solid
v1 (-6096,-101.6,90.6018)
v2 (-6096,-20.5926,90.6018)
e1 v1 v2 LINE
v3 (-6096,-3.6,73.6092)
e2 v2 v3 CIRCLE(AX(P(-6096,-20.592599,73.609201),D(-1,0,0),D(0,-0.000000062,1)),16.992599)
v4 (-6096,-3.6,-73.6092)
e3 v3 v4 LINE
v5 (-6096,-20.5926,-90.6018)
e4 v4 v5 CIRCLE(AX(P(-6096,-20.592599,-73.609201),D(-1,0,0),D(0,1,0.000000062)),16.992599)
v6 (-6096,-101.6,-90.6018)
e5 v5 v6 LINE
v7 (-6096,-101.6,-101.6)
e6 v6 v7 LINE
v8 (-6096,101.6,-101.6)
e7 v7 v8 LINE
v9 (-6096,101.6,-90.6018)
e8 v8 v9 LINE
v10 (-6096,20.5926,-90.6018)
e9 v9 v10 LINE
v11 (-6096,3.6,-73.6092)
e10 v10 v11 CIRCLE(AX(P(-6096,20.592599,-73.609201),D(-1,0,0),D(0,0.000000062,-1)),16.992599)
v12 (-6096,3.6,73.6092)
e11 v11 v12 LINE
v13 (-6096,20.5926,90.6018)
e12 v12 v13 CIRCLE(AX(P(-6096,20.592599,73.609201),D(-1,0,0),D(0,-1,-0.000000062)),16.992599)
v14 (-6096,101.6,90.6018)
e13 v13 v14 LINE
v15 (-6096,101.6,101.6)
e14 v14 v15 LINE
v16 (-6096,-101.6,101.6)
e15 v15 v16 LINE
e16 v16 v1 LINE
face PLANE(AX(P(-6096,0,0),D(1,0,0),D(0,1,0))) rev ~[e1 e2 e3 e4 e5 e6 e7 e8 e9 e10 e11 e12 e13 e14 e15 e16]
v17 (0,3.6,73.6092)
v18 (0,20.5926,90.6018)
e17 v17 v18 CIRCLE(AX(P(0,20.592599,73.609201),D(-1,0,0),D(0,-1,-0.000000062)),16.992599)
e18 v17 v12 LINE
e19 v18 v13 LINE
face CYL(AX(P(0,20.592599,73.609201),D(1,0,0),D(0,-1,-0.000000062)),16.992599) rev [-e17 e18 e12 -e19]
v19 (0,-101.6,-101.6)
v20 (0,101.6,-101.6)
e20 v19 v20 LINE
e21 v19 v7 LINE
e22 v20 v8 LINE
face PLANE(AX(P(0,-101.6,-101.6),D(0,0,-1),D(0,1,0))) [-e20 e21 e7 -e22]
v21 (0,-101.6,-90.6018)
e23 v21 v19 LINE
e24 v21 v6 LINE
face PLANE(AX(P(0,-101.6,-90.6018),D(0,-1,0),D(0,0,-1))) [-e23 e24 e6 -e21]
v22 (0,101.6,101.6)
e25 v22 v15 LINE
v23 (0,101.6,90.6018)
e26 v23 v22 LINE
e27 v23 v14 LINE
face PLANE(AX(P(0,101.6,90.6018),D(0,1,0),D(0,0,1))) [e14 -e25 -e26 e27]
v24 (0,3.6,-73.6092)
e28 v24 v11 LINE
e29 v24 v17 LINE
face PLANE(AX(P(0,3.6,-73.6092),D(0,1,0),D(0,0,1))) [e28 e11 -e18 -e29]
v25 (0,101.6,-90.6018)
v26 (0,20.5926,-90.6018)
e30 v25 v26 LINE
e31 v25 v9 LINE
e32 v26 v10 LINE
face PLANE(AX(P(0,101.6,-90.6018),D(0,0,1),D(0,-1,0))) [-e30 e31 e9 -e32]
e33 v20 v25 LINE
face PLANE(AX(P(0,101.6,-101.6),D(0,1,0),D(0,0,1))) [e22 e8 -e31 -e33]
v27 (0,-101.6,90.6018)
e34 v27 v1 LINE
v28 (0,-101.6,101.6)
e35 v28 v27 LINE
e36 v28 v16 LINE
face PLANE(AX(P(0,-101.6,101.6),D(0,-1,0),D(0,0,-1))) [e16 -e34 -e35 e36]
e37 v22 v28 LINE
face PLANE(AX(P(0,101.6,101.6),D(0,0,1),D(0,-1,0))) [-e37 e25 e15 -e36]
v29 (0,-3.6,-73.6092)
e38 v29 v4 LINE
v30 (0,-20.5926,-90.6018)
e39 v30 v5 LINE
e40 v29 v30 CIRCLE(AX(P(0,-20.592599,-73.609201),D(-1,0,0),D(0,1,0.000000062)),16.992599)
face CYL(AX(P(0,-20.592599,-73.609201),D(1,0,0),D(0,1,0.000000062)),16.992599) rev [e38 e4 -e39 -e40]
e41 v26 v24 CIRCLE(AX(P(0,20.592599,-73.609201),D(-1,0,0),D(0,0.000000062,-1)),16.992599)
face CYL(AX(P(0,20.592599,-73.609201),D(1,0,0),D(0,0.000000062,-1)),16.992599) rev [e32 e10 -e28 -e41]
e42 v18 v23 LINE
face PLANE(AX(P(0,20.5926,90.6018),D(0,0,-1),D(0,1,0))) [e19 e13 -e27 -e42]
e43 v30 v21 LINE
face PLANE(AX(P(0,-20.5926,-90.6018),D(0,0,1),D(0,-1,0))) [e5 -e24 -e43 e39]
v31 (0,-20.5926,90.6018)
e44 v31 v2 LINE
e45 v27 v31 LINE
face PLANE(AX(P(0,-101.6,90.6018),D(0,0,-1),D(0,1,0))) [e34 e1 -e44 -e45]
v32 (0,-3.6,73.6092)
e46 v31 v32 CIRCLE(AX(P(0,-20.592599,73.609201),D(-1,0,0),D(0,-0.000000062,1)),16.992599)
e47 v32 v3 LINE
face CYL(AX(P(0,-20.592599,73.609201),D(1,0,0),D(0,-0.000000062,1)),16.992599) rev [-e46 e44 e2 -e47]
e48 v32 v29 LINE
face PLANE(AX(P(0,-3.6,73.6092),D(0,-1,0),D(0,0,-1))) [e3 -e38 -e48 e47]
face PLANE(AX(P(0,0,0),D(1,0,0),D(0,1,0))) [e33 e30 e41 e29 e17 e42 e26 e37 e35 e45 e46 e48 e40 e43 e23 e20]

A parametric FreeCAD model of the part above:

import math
import FreeCAD as App
import Part
import Sketcher

V = App.Vector
Q = App.Units.Quantity

doc = App.newDocument("Part")
params = doc.addObject("Spreadsheet::Sheet", "Params")
for row, (alias, value) in enumerate([
    ("sketch1_width", "8 in"),
    ("sketch1_radius", "0.669 in"),
    ("sketch1_height", "5.796 in"),
    ("pad1_length", "240 in"),
], start=1):
    params.set(f"A{row}", alias)
    params.set(f"B{row}", "=" + value)
    params.setAlias(f"B{row}", alias)

body = doc.addObject("PartDesign::Body", "Body")

# Sketch on YZ plane
sketch1 = doc.addObject("Sketcher::SketchObject", "Sketch")
body.addObject(sketch1)
sketch1.AttachmentSupport = (doc.YZ_Plane, [""])
sketch1.MapMode = "FlatFace"
sketch1.addGeometry(Part.LineSegment(V(-4, 74, 0), V(-4, -74, 0)), False)
sketch1.addGeometry(Part.ArcOfCircle(Part.Circle(V(-21, -74, 0), V(0, 0, 1), 17), math.radians(-90), math.radians(0)), False)
sketch1.addGeometry(Part.LineSegment(V(-21, -91, 0), V(-102, -91, 0)), False)
sketch1.addGeometry(Part.LineSegment(V(-102, -91, 0), V(-102, -102, 0)), False)
sketch1.addGeometry(Part.LineSegment(V(-102, -102, 0), V(102, -102, 0)), False)
sketch1.addGeometry(Part.LineSegment(V(102, -102, 0), V(102, -91, 0)), False)
sketch1.addGeometry(Part.LineSegment(V(102, -91, 0), V(21, -91, 0)), False)
sketch1.addGeometry(Part.ArcOfCircle(Part.Circle(V(21, -74, 0), V(0, 0, 1), 17), math.radians(180), math.radians(270)), False)
sketch1.addGeometry(Part.LineSegment(V(4, -74, 0), V(4, 74, 0)), False)
sketch1.addGeometry(Part.ArcOfCircle(Part.Circle(V(21, 74, 0), V(0, 0, 1), 17), math.radians(90), math.radians(180)), False)
sketch1.addGeometry(Part.LineSegment(V(21, 91, 0), V(102, 91, 0)), False)
sketch1.addGeometry(Part.LineSegment(V(102, 91, 0), V(102, 102, 0)), False)
sketch1.addGeometry(Part.LineSegment(V(102, 102, 0), V(-102, 102, 0)), False)
sketch1.addGeometry(Part.LineSegment(V(-102, 102, 0), V(-102, 91, 0)), False)
sketch1.addGeometry(Part.LineSegment(V(-102, 91, 0), V(-21, 91, 0)), False)
sketch1.addGeometry(Part.ArcOfCircle(Part.Circle(V(-21, 74, 0), V(0, 0, 1), 17), math.radians(0), math.radians(90)), False)
sketch1.addConstraint(Sketcher.Constraint("Tangent", 0, 2, 1, 2))
sketch1.addConstraint(Sketcher.Constraint("Tangent", 1, 1, 2, 1))
sketch1.addConstraint(Sketcher.Constraint("Coincident", 2, 2, 3, 1))
sketch1.addConstraint(Sketcher.Constraint("Coincident", 3, 2, 4, 1))
sketch1.addConstraint(Sketcher.Constraint("Coincident", 4, 2, 5, 1))
sketch1.addConstraint(Sketcher.Constraint("Coincident", 5, 2, 6, 1))
sketch1.addConstraint(Sketcher.Constraint("Tangent", 6, 2, 7, 2))
sketch1.addConstraint(Sketcher.Constraint("Tangent", 7, 1, 8, 1))
sketch1.addConstraint(Sketcher.Constraint("Tangent", 8, 2, 9, 2))
sketch1.addConstraint(Sketcher.Constraint("Tangent", 9, 1, 10, 1))
sketch1.addConstraint(Sketcher.Constraint("Coincident", 10, 2, 11, 1))
sketch1.addConstraint(Sketcher.Constraint("Coincident", 11, 2, 12, 1))
sketch1.addConstraint(Sketcher.Constraint("Coincident", 12, 2, 13, 1))
sketch1.addConstraint(Sketcher.Constraint("Coincident", 13, 2, 14, 1))
sketch1.addConstraint(Sketcher.Constraint("Tangent", 14, 2, 15, 2))
sketch1.addConstraint(Sketcher.Constraint("Tangent", 15, 1, 0, 1))
sketch1.addConstraint(Sketcher.Constraint("Vertical", 0))
sketch1.addConstraint(Sketcher.Constraint("Horizontal", 2))
sketch1.addConstraint(Sketcher.Constraint("Vertical", 3))
sketch1.addConstraint(Sketcher.Constraint("Horizontal", 4))
sketch1.addConstraint(Sketcher.Constraint("Vertical", 5))
sketch1.addConstraint(Sketcher.Constraint("Horizontal", 6))
sketch1.addConstraint(Sketcher.Constraint("Vertical", 8))
sketch1.addConstraint(Sketcher.Constraint("Horizontal", 10))
sketch1.addConstraint(Sketcher.Constraint("Vertical", 11))
sketch1.addConstraint(Sketcher.Constraint("Horizontal", 12))
sketch1.addConstraint(Sketcher.Constraint("Vertical", 13))
sketch1.addConstraint(Sketcher.Constraint("Horizontal", 14))
sketch1.addConstraint(Sketcher.Constraint("Equal", 1, 7))
sketch1.addConstraint(Sketcher.Constraint("Equal", 7, 9))
sketch1.addConstraint(Sketcher.Constraint("Equal", 9, 15))
sketch1.addConstraint(Sketcher.Constraint("Symmetric", 1, 3, 9, 3, -1, 1))
sketch1.addConstraint(Sketcher.Constraint("Symmetric", 3, 2, 11, 2, -1, 1))
sketch1.addConstraint(Sketcher.Constraint("Symmetric", 5, 2, 13, 2, -1, 1))
sketch1.addConstraint(Sketcher.Constraint("Symmetric", 2, 2, 5, 2, -2))
sketch1.addConstraint(Sketcher.Constraint("DistanceX", 4, 1, 4, 2, Q("8 in")))
sketch1.addConstraint(Sketcher.Constraint("DistanceY", 3, 2, -1, 1, Q("4 in")))
sketch1.addConstraint(Sketcher.Constraint("Radius", 1, Q("0.669 in")))
sketch1.addConstraint(Sketcher.Constraint("DistanceY", 0, 2, 0, 1, Q("5.796 in")))
sketch1.addConstraint(Sketcher.Constraint("DistanceX", 2, 2, 2, 1, 81.0074))
sketch1.setExpression("Constraints[35]", "Params.sketch1_width")
sketch1.setExpression("Constraints[37]", "Params.sketch1_radius")
sketch1.setExpression("Constraints[38]", "Params.sketch1_height")
pad1 = doc.addObject("PartDesign::Pad", "Pad")
body.addObject(pad1)
pad1.Profile = sketch1
pad1.setExpression("Length", "Params.pad1_length")
pad1.Reversed = True

doc.recompute()
